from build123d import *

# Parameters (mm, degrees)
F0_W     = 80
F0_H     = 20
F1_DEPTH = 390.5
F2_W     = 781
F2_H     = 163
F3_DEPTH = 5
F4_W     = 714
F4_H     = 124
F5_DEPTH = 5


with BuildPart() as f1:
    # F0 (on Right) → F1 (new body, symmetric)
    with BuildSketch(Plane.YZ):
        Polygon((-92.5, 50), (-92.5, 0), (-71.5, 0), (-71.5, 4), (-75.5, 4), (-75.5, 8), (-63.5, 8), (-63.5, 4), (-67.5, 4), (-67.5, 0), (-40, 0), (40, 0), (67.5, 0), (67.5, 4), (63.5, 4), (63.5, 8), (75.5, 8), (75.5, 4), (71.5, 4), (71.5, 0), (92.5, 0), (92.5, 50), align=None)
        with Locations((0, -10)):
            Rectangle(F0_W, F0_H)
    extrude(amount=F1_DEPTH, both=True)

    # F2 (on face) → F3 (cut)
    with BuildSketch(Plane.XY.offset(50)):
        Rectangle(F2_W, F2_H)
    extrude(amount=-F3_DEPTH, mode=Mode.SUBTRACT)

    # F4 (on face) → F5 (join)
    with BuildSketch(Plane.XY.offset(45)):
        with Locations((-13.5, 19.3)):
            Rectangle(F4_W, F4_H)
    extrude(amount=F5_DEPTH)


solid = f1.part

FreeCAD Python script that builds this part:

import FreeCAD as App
import Part
import Sketcher
from FreeCAD import Vector


def add_polygon(sketch, points):
    """Adds a closed chain of lines whose ends are joined by coincident constraints."""
    first, n = sketch.GeometryCount, len(points)
    for a, b in zip(points, points[1:] + points[:1]):
        sketch.addGeometry(Part.LineSegment(App.Vector(*a, 0), App.Vector(*b, 0)), False)
    for i in range(n):
        sketch.addConstraint(Sketcher.Constraint("Coincident", first + i, 2, first + (i + 1) % n, 1))

doc = App.newDocument("Part")
params = doc.addObject("Spreadsheet::Sheet", "Params")
for row, (alias, value) in enumerate([
    ("sketch1_width", "21 mm"),
    ("sketch1_width2", "4 mm"),
    ("sketch1_width3", "12 mm"),
    ("sketch1_width4", "80 mm"),
    ("sketch1_width5", "185 mm"),
    ("pad1_length", "781 mm"),
    ("sketch2_width", "781 mm"),
    ("sketch2_height", "163 mm"),
    ("pocket1_length", "5 mm"),
    ("sketch3_width", "714 mm"),
    ("sketch3_height", "124 mm"),
    ("pad2_length", "5 mm"),
], start=1):
    params.set(f"A{row}", alias)
    params.set(f"B{row}", "=" + value)
    params.setAlias(f"B{row}", alias)

body = doc.addObject("PartDesign::Body", "Body")

sketch1 = body.newObject("Sketcher::SketchObject", "Sketch")
sketch1.AttachmentSupport = (doc.getObject("YZ_Plane"), [""])
sketch1.MapMode = "FlatFace"
add_polygon(sketch1, [(-92.5, 50), (-92.5, 0), (-71.5, 0), (-71.5, 4), (-75.5, 4), (-75.5, 8), (-63.5, 8), (-63.5, 4), (-67.5, 4), (-67.5, 0), (-40, 0), (-40, -20), (40, -20), (40, 0), (67.5, 0), (67.5, 4), (63.5, 4), (63.5, 8), (75.5, 8), (75.5, 4), (71.5, 4), (71.5, 0), (92.5, 0), (92.5, 50)])
sketch1.addConstraint([
    Sketcher.Constraint("Vertical", 0),
    Sketcher.Constraint("Horizontal", 1),
    Sketcher.Constraint("Vertical", 2),
    Sketcher.Constraint("Horizontal", 3),
    Sketcher.Constraint("Vertical", 4),
    Sketcher.Constraint("Horizontal", 5),
    Sketcher.Constraint("Vertical", 6),
    Sketcher.Constraint("Horizontal", 7),
    Sketcher.Constraint("Vertical", 8),
    Sketcher.Constraint("Horizontal", 9),
    Sketcher.Constraint("Vertical", 10),
    Sketcher.Constraint("Horizontal", 11),
    Sketcher.Constraint("Vertical", 12),
    Sketcher.Constraint("Horizontal", 13),
    Sketcher.Constraint("Vertical", 14),
    Sketcher.Constraint("Horizontal", 15),
    Sketcher.Constraint("Vertical", 16),
    Sketcher.Constraint("Horizontal", 17),
    Sketcher.Constraint("Vertical", 18),
    Sketcher.Constraint("Horizontal", 19),
    Sketcher.Constraint("Vertical", 20),
    Sketcher.Constraint("Horizontal", 21),
    Sketcher.Constraint("Vertical", 22),
    Sketcher.Constraint("Horizontal", 23),
    Sketcher.Constraint("Symmetric", 9, 2, 12, 2, -1, 1),
    Sketcher.Constraint("Symmetric", 1, 2, 20, 2, -1, 1),
    Sketcher.Constraint("Symmetric", 8, 2, 13, 2, -2),
    Sketcher.Constraint("Symmetric", 6, 2, 15, 2, -2),
    Sketcher.Constraint("Symmetric", 4, 2, 17, 2, -2),
    Sketcher.Constraint("Symmetric", 0, 2, 21, 2, -2),
    Sketcher.Constraint("Horizontal", 3, 2, 6, 2),
    Sketcher.Constraint("Horizontal", 15, 2, 18, 2),
    Sketcher.Constraint("Equal", 3, 7),
    Sketcher.Constraint("Equal", 19, 2),
    Sketcher.Constraint("Equal", 2, 4),
    Sketcher.Constraint("DistanceX", 1, 1, 1, 2, 21.0),
    Sketcher.Constraint("DistanceX", 3, 2, 3, 1, 4.0),
    Sketcher.Constraint("DistanceX", 5, 1, 5, 2, 12.0),
    Sketcher.Constraint("DistanceX", 11, 1, 11, 2, 80.0),
    Sketcher.Constraint("DistanceX", 23, 2, 23, 1, 185.0),
    Sketcher.Constraint("DistanceY", 0, 2, 0, 1, 50.0),
    Sketcher.Constraint("DistanceY", 10, 2, 10, 1, 20.0),
])
sketch1.setExpression("Constraints[59]", "Params.sketch1_width")
sketch1.setExpression("Constraints[60]", "Params.sketch1_width2")
sketch1.setExpression("Constraints[61]", "Params.sketch1_width3")
sketch1.setExpression("Constraints[62]", "Params.sketch1_width4")
sketch1.setExpression("Constraints[63]", "Params.sketch1_width5")
pad1 = body.newObject("PartDesign::Pad", "Pad")
pad1.Profile = sketch1
pad1.setExpression("Length", "Params.pad1_length")
pad1.Midplane = True

sketch2 = body.newObject("Sketcher::SketchObject", "Sketch001")
sketch2.AttachmentSupport = (doc.getObject("XY_Plane"), [""])
sketch2.MapMode = "FlatFace"
sketch2.AttachmentOffset = App.Placement(Vector(0, 0, 50), App.Rotation())
add_polygon(sketch2, [(-390, 82), (-390, -82), (390, -82), (390, 82)])
sketch2.addConstraint([
    Sketcher.Constraint("Vertical", 0),
    Sketcher.Constraint("Horizontal", 1),
    Sketcher.Constraint("Vertical", 2),
    Sketcher.Constraint("Horizontal", 3),
    Sketcher.Constraint("Symmetric", 0, 2, 2, 2, -1, 1),
    Sketcher.Constraint("DistanceX", 1, 1, 1, 2, 781.0),
    Sketcher.Constraint("DistanceY", 0, 2, 0, 1, 163.0),
])
sketch2.setExpression("Constraints[9]", "Params.sketch2_width")
sketch2.setExpression("Constraints[10]", "Params.sketch2_height")
pocket1 = body.newObject("PartDesign::Pocket", "Pocket")
pocket1.Profile = sketch2
pocket1.setExpression("Length", "Params.pocket1_length")

sketch3 = body.newObject("Sketcher::SketchObject", "Sketch002")
sketch3.AttachmentSupport = (doc.getObject("XY_Plane"), [""])
sketch3.MapMode = "FlatFace"
sketch3.AttachmentOffset = App.Placement(Vector(0, 0, 45), App.Rotation())
add_polygon(sketch3, [(-370, 81), (-370, -43), (344, -43), (344, 81)])
sketch3.addConstraint([
    Sketcher.Constraint("Vertical", 0),
    Sketcher.Constraint("Horizontal", 1),
    Sketcher.Constraint("Vertical", 2),
    Sketcher.Constraint("Horizontal", 3),
    Sketcher.Constraint("DistanceX", 1, 1, 1, 2, 714.0),
    Sketcher.Constraint("DistanceY", 0, 2, 0, 1, 124.0),
    Sketcher.Constraint("DistanceX", 0, 2, -1, 1, 370.5),
    Sketcher.Constraint("DistanceY", 0, 2, -1, 1, 42.7),
])
sketch3.setExpression("Constraints[8]", "Params.sketch3_width")
sketch3.setExpression("Constraints[9]", "Params.sketch3_height")
pad2 = body.newObject("PartDesign::Pad", "Pad001")
pad2.Profile = sketch3
pad2.setExpression("Length", "Params.pad2_length")

doc.recompute()
